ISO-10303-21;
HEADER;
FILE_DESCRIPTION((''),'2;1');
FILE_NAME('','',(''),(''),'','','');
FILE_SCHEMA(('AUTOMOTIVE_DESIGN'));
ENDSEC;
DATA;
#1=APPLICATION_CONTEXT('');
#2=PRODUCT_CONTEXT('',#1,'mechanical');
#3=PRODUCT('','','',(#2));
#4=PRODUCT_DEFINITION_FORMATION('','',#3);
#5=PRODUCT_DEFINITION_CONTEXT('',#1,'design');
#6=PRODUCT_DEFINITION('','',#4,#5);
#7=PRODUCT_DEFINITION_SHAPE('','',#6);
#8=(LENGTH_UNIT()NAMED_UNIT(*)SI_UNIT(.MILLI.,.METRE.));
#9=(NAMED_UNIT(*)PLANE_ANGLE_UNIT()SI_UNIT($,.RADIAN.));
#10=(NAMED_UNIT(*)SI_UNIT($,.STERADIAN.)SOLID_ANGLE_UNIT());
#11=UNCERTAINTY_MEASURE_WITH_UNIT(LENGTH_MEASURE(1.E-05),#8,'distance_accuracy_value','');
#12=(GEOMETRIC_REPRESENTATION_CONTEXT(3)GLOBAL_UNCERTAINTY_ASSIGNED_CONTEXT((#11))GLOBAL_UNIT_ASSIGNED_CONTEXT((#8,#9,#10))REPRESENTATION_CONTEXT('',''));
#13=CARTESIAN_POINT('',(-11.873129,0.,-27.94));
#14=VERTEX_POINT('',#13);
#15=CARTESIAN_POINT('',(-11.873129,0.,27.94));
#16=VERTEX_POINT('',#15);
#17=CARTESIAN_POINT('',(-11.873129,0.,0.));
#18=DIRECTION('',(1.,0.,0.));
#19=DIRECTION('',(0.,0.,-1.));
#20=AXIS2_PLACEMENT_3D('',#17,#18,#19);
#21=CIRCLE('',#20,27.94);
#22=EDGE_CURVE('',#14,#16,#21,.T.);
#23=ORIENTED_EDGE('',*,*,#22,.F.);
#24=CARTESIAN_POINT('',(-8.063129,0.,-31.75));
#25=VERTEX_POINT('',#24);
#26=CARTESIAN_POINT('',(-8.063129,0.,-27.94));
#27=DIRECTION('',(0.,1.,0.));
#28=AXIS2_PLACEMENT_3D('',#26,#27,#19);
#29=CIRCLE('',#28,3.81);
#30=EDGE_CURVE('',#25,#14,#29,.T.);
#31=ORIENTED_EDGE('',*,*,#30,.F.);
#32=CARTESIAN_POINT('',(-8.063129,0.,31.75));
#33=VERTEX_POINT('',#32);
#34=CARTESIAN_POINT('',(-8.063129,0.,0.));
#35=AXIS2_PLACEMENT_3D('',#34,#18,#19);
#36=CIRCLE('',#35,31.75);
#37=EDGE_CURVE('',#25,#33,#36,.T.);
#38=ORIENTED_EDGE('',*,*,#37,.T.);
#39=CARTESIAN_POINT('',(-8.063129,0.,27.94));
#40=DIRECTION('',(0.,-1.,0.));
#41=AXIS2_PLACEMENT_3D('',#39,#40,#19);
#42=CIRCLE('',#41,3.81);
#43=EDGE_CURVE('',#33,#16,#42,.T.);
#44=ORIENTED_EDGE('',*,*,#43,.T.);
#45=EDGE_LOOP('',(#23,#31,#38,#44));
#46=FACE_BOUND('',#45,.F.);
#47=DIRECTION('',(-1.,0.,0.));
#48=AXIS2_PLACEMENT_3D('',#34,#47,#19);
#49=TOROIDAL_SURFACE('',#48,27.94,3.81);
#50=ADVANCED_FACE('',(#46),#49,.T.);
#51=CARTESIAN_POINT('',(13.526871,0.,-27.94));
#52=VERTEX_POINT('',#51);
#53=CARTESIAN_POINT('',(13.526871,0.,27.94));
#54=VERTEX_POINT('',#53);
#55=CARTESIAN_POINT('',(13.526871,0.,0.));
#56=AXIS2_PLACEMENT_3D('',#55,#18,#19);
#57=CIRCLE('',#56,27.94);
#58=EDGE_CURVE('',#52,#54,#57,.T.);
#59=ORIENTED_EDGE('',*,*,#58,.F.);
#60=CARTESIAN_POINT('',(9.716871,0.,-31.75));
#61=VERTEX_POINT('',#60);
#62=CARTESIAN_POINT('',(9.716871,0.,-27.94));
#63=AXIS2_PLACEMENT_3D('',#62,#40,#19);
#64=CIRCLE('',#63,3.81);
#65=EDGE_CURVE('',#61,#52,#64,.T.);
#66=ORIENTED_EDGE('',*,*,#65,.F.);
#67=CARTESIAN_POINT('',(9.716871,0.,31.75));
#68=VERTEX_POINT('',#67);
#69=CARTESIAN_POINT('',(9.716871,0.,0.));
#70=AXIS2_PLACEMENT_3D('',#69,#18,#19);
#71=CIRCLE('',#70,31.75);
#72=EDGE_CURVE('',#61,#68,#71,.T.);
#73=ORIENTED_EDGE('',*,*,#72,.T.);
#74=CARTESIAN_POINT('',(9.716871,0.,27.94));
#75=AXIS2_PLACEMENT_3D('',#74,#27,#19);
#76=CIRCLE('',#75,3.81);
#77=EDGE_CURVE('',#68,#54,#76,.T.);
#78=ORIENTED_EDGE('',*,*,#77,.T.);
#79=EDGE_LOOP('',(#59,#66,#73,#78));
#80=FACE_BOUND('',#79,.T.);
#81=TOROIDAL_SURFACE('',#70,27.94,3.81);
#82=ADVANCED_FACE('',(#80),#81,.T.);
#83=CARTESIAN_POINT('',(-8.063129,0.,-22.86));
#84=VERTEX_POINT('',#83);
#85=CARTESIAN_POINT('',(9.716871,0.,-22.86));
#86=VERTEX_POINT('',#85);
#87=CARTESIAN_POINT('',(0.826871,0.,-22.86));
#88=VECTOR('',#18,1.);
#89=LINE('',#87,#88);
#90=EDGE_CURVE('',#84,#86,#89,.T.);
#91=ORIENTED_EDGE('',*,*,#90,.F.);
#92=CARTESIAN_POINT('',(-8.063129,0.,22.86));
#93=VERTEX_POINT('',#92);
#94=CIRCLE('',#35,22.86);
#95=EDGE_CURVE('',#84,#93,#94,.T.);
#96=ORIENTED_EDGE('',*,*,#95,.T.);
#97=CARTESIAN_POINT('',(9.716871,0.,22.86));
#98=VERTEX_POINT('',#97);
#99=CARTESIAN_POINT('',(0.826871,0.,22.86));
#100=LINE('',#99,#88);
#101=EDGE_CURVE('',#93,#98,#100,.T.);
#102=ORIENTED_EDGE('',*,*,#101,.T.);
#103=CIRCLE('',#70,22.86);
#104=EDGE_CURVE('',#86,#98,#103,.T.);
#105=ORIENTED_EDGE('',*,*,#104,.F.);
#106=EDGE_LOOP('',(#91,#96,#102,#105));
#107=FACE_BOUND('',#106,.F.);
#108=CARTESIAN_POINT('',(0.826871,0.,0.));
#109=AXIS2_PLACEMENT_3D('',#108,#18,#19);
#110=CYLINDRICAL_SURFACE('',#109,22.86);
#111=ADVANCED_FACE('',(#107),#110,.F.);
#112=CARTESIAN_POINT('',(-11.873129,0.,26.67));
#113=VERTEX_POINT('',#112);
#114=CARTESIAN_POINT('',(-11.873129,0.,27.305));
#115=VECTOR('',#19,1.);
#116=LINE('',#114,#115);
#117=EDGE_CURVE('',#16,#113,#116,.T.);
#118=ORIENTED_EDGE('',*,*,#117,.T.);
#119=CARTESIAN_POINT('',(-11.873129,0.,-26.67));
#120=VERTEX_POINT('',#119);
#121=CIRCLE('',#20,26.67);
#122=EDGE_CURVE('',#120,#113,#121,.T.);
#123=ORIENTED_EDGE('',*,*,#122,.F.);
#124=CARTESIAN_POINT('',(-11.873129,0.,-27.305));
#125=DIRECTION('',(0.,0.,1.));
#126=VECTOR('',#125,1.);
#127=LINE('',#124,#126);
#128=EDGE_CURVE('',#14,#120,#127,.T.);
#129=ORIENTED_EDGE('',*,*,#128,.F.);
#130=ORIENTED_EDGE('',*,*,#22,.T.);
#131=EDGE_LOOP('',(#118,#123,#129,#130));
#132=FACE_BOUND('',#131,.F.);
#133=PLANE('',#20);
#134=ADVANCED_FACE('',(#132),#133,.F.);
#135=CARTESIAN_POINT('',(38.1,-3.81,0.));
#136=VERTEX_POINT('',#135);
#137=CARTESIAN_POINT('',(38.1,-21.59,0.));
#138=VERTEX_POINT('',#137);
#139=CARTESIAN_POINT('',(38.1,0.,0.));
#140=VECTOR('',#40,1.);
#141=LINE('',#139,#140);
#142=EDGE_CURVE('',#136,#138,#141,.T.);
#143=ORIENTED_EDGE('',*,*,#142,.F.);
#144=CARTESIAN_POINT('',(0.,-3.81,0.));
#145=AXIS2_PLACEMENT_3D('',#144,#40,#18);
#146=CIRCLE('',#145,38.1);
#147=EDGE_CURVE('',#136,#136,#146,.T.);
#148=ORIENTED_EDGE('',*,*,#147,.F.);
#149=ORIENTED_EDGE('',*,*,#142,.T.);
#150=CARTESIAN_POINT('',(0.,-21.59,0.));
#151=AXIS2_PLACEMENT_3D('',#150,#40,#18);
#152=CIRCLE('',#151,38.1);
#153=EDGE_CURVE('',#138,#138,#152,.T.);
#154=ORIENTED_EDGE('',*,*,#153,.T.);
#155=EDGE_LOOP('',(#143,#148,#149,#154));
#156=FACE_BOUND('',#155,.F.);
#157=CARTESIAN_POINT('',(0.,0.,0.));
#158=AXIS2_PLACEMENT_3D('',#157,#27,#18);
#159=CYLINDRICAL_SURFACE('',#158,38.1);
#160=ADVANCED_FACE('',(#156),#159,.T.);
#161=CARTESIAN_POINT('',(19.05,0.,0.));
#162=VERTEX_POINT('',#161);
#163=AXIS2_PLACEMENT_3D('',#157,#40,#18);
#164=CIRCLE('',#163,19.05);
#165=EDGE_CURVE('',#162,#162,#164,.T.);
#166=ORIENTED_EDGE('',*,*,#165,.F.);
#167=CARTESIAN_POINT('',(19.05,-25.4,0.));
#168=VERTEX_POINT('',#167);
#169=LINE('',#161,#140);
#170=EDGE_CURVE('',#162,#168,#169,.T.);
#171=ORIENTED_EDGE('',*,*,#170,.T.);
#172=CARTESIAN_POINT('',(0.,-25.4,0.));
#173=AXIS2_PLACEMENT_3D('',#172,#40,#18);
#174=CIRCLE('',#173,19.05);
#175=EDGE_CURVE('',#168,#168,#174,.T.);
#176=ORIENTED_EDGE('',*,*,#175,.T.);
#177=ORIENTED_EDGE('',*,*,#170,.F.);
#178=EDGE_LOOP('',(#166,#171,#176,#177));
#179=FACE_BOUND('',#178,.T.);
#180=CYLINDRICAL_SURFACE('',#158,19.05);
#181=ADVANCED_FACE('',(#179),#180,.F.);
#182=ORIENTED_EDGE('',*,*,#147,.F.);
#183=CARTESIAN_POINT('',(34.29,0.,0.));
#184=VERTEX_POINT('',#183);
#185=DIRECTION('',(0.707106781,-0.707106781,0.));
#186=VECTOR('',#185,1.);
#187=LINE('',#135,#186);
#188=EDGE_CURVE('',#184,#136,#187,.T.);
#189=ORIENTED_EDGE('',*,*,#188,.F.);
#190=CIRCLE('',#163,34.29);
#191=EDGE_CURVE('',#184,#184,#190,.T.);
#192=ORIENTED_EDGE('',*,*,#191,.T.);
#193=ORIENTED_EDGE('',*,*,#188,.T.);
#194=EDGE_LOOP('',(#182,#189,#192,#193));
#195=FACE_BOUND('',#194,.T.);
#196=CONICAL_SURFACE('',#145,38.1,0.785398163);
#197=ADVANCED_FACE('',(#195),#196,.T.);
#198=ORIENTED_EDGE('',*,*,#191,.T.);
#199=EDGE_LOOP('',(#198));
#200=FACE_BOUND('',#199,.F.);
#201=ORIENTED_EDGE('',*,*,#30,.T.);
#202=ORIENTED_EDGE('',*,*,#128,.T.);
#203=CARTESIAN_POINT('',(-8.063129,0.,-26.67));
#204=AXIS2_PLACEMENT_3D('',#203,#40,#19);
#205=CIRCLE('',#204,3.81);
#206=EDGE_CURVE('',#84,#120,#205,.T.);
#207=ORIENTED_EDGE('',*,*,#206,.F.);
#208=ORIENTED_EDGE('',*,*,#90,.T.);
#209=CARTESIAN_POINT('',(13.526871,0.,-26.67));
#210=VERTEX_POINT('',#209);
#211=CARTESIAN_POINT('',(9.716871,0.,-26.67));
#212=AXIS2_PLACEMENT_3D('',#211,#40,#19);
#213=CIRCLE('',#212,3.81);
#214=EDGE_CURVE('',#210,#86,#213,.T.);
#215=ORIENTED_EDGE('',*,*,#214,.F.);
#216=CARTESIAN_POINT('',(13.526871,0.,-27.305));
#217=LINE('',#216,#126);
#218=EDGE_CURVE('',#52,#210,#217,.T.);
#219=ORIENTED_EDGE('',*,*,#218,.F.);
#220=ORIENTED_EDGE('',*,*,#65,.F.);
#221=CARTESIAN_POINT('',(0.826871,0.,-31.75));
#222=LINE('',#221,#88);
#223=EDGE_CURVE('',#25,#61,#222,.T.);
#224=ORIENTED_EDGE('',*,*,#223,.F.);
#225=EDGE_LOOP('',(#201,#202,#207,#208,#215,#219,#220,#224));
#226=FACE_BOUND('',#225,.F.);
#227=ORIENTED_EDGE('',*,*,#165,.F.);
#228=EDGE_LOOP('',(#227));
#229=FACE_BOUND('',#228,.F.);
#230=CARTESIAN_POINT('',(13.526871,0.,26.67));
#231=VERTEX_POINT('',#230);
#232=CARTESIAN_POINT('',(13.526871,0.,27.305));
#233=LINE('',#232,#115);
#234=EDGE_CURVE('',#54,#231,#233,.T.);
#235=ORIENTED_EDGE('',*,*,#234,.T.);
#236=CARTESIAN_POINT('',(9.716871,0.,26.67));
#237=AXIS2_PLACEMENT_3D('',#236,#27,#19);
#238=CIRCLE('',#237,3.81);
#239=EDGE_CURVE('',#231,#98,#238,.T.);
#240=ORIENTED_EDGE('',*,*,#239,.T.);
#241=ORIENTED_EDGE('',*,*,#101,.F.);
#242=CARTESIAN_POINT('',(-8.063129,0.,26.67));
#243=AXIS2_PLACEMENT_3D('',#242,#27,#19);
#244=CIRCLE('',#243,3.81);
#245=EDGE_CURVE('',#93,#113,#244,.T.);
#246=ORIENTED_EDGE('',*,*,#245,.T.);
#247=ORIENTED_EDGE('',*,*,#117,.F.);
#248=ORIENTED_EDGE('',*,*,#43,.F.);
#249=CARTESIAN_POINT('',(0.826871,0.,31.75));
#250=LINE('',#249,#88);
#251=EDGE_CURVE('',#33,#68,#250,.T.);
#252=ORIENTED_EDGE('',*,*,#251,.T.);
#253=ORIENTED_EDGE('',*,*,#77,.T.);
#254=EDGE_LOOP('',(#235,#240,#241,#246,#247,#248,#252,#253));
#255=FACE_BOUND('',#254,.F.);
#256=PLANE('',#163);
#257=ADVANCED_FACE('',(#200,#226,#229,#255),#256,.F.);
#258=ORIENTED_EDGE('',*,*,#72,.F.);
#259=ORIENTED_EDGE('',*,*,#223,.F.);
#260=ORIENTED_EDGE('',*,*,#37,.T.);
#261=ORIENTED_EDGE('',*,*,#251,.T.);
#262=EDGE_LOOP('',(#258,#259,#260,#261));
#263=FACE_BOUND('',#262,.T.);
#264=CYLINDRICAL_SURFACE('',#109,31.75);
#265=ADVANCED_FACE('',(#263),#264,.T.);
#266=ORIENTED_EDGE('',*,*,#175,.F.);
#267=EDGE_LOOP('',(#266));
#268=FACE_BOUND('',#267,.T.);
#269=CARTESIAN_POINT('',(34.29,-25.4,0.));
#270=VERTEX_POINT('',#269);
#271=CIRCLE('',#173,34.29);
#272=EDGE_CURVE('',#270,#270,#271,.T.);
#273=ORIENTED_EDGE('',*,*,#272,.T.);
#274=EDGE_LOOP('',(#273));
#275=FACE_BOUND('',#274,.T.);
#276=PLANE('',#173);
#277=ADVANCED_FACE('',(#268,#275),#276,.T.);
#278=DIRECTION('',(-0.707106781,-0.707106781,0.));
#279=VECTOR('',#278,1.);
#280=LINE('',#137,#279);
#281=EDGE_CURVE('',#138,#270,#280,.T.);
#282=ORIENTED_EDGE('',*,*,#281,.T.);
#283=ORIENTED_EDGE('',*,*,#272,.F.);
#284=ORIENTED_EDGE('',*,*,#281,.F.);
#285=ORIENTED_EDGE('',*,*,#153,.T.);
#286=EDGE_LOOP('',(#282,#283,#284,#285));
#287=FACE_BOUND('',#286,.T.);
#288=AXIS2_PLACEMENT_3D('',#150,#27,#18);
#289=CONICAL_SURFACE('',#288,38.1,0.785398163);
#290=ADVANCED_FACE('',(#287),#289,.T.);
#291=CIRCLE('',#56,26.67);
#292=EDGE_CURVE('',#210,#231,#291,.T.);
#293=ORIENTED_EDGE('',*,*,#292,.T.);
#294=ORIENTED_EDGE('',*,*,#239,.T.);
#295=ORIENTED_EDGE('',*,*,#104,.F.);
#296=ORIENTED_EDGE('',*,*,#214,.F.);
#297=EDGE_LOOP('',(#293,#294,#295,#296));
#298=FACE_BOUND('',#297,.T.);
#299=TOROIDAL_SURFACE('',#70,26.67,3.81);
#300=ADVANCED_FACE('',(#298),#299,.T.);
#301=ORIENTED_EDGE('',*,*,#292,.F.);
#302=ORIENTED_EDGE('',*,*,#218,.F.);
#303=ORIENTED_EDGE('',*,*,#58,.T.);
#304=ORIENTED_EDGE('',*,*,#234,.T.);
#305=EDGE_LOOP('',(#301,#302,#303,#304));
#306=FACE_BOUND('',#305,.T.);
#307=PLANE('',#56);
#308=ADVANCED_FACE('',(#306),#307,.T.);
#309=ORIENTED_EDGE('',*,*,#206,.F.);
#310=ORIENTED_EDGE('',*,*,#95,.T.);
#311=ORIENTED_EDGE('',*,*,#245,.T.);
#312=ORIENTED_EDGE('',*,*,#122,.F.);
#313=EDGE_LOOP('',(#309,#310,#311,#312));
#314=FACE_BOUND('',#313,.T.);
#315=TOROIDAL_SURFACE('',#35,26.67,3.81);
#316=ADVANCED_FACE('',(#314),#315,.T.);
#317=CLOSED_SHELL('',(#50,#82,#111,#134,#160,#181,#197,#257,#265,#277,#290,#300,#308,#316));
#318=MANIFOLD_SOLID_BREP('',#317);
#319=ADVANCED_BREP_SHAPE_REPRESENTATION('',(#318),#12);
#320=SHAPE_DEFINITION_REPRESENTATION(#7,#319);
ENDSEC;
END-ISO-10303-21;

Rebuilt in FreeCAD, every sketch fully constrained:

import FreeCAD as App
import Part
import Sketcher
from FreeCAD import Vector
Q = App.Units.Quantity


def edges_at(feature, points):
    """Names of the edges that pass closest to the given points."""
    edges = feature.Shape.Edges
    near = lambda p: min(range(len(edges)), key=lambda i: edges[i].distToShape(Part.Vertex(*p))[0])
    return sorted({f"Edge{near(p) + 1}" for p in points})


def add_polygon(sketch, points):
    """Adds a closed chain of lines whose ends are joined by coincident constraints."""
    first, n = sketch.GeometryCount, len(points)
    for a, b in zip(points, points[1:] + points[:1]):
        sketch.addGeometry(Part.LineSegment(App.Vector(*a, 0), App.Vector(*b, 0)), False)
    for i in range(n):
        sketch.addConstraint(Sketcher.Constraint("Coincident", first + i, 2, first + (i + 1) % n, 1))

doc = App.newDocument("Part")
body = doc.addObject("PartDesign::Body", "Body")

sketch1 = body.newObject("Sketcher::SketchObject", "Sketch")
sketch1.AttachmentSupport = (doc.getObject("XZ_Plane"), [""])
sketch1.MapMode = "FlatFace"
sketch1.addGeometry(Part.Circle(Vector(0, 0, 0), Vector(0, 0, 1), 38.1), False)
sketch1.addGeometry(Part.Circle(Vector(0, 0, 0), Vector(0, 0, 1), 19.05), False)
sketch1.addConstraint(Sketcher.Constraint("Coincident", 0, 3, -1, 1))
sketch1.addConstraint(Sketcher.Constraint("Coincident", 1, 3, -1, 1))
sketch1.addConstraint(Sketcher.Constraint("Diameter", 0, Q("3 in")))
sketch1.addConstraint(Sketcher.Constraint("Diameter", 1, Q("1.5 in")))
pad1 = body.newObject("PartDesign::Pad", "Pad")
pad1.Profile = sketch1
pad1.Length = Q("1 in")

sketch2 = body.newObject("Sketcher::SketchObject", "Sketch001")
sketch2.AttachmentSupport = (doc.getObject("XZ_Plane"), [""])
sketch2.MapMode = "FlatFace"
add_polygon(sketch2, [(-11.873129, -22.86), (-11.873129, -31.75), (13.526871, -31.75), (13.526871, -22.86)])
sketch2.addConstraint(Sketcher.Constraint("Vertical", 0))
sketch2.addConstraint(Sketcher.Constraint("Horizontal", 1))
sketch2.addConstraint(Sketcher.Constraint("Vertical", 2))
sketch2.addConstraint(Sketcher.Constraint("Horizontal", 3))
sketch2.addConstraint(Sketcher.Constraint("DistanceX", 1, 1, 1, 2, Q("1 in")))
sketch2.addConstraint(Sketcher.Constraint("DistanceY", 0, 2, 0, 1, Q("0.35 in")))
sketch2.addConstraint(Sketcher.Constraint("DistanceY", 2, 2, -1, 1, Q("0.9 in")))
sketch2.addConstraint(Sketcher.Constraint("DistanceX", 0, 2, -1, 1, 11.873129))
revolution = body.newObject("PartDesign::Revolution", "Revolution")
revolution.Profile = sketch2
revolution.ReferenceAxis = (sketch2, ["H_Axis"])
revolution.Angle = 180
doc.recompute()

fillet = body.newObject("PartDesign::Fillet", "Fillet")
fillet.Base = (revolution, edges_at(revolution, [
    (13.527, 31.75, 0),
    (-11.873, 31.75, 0),
    (-11.873, 22.86, 0),
    (13.527, 22.86, 0),
]))
fillet.Radius = Q("0.15 in")
doc.recompute()

chamfer = body.newObject("PartDesign::Chamfer", "Chamfer")
chamfer.Base = (fillet, edges_at(fillet, [(-38.1, 0, 0), (-38.1, -25.4, 0)]))
chamfer.Size = Q("0.15 in")

doc.recompute()
